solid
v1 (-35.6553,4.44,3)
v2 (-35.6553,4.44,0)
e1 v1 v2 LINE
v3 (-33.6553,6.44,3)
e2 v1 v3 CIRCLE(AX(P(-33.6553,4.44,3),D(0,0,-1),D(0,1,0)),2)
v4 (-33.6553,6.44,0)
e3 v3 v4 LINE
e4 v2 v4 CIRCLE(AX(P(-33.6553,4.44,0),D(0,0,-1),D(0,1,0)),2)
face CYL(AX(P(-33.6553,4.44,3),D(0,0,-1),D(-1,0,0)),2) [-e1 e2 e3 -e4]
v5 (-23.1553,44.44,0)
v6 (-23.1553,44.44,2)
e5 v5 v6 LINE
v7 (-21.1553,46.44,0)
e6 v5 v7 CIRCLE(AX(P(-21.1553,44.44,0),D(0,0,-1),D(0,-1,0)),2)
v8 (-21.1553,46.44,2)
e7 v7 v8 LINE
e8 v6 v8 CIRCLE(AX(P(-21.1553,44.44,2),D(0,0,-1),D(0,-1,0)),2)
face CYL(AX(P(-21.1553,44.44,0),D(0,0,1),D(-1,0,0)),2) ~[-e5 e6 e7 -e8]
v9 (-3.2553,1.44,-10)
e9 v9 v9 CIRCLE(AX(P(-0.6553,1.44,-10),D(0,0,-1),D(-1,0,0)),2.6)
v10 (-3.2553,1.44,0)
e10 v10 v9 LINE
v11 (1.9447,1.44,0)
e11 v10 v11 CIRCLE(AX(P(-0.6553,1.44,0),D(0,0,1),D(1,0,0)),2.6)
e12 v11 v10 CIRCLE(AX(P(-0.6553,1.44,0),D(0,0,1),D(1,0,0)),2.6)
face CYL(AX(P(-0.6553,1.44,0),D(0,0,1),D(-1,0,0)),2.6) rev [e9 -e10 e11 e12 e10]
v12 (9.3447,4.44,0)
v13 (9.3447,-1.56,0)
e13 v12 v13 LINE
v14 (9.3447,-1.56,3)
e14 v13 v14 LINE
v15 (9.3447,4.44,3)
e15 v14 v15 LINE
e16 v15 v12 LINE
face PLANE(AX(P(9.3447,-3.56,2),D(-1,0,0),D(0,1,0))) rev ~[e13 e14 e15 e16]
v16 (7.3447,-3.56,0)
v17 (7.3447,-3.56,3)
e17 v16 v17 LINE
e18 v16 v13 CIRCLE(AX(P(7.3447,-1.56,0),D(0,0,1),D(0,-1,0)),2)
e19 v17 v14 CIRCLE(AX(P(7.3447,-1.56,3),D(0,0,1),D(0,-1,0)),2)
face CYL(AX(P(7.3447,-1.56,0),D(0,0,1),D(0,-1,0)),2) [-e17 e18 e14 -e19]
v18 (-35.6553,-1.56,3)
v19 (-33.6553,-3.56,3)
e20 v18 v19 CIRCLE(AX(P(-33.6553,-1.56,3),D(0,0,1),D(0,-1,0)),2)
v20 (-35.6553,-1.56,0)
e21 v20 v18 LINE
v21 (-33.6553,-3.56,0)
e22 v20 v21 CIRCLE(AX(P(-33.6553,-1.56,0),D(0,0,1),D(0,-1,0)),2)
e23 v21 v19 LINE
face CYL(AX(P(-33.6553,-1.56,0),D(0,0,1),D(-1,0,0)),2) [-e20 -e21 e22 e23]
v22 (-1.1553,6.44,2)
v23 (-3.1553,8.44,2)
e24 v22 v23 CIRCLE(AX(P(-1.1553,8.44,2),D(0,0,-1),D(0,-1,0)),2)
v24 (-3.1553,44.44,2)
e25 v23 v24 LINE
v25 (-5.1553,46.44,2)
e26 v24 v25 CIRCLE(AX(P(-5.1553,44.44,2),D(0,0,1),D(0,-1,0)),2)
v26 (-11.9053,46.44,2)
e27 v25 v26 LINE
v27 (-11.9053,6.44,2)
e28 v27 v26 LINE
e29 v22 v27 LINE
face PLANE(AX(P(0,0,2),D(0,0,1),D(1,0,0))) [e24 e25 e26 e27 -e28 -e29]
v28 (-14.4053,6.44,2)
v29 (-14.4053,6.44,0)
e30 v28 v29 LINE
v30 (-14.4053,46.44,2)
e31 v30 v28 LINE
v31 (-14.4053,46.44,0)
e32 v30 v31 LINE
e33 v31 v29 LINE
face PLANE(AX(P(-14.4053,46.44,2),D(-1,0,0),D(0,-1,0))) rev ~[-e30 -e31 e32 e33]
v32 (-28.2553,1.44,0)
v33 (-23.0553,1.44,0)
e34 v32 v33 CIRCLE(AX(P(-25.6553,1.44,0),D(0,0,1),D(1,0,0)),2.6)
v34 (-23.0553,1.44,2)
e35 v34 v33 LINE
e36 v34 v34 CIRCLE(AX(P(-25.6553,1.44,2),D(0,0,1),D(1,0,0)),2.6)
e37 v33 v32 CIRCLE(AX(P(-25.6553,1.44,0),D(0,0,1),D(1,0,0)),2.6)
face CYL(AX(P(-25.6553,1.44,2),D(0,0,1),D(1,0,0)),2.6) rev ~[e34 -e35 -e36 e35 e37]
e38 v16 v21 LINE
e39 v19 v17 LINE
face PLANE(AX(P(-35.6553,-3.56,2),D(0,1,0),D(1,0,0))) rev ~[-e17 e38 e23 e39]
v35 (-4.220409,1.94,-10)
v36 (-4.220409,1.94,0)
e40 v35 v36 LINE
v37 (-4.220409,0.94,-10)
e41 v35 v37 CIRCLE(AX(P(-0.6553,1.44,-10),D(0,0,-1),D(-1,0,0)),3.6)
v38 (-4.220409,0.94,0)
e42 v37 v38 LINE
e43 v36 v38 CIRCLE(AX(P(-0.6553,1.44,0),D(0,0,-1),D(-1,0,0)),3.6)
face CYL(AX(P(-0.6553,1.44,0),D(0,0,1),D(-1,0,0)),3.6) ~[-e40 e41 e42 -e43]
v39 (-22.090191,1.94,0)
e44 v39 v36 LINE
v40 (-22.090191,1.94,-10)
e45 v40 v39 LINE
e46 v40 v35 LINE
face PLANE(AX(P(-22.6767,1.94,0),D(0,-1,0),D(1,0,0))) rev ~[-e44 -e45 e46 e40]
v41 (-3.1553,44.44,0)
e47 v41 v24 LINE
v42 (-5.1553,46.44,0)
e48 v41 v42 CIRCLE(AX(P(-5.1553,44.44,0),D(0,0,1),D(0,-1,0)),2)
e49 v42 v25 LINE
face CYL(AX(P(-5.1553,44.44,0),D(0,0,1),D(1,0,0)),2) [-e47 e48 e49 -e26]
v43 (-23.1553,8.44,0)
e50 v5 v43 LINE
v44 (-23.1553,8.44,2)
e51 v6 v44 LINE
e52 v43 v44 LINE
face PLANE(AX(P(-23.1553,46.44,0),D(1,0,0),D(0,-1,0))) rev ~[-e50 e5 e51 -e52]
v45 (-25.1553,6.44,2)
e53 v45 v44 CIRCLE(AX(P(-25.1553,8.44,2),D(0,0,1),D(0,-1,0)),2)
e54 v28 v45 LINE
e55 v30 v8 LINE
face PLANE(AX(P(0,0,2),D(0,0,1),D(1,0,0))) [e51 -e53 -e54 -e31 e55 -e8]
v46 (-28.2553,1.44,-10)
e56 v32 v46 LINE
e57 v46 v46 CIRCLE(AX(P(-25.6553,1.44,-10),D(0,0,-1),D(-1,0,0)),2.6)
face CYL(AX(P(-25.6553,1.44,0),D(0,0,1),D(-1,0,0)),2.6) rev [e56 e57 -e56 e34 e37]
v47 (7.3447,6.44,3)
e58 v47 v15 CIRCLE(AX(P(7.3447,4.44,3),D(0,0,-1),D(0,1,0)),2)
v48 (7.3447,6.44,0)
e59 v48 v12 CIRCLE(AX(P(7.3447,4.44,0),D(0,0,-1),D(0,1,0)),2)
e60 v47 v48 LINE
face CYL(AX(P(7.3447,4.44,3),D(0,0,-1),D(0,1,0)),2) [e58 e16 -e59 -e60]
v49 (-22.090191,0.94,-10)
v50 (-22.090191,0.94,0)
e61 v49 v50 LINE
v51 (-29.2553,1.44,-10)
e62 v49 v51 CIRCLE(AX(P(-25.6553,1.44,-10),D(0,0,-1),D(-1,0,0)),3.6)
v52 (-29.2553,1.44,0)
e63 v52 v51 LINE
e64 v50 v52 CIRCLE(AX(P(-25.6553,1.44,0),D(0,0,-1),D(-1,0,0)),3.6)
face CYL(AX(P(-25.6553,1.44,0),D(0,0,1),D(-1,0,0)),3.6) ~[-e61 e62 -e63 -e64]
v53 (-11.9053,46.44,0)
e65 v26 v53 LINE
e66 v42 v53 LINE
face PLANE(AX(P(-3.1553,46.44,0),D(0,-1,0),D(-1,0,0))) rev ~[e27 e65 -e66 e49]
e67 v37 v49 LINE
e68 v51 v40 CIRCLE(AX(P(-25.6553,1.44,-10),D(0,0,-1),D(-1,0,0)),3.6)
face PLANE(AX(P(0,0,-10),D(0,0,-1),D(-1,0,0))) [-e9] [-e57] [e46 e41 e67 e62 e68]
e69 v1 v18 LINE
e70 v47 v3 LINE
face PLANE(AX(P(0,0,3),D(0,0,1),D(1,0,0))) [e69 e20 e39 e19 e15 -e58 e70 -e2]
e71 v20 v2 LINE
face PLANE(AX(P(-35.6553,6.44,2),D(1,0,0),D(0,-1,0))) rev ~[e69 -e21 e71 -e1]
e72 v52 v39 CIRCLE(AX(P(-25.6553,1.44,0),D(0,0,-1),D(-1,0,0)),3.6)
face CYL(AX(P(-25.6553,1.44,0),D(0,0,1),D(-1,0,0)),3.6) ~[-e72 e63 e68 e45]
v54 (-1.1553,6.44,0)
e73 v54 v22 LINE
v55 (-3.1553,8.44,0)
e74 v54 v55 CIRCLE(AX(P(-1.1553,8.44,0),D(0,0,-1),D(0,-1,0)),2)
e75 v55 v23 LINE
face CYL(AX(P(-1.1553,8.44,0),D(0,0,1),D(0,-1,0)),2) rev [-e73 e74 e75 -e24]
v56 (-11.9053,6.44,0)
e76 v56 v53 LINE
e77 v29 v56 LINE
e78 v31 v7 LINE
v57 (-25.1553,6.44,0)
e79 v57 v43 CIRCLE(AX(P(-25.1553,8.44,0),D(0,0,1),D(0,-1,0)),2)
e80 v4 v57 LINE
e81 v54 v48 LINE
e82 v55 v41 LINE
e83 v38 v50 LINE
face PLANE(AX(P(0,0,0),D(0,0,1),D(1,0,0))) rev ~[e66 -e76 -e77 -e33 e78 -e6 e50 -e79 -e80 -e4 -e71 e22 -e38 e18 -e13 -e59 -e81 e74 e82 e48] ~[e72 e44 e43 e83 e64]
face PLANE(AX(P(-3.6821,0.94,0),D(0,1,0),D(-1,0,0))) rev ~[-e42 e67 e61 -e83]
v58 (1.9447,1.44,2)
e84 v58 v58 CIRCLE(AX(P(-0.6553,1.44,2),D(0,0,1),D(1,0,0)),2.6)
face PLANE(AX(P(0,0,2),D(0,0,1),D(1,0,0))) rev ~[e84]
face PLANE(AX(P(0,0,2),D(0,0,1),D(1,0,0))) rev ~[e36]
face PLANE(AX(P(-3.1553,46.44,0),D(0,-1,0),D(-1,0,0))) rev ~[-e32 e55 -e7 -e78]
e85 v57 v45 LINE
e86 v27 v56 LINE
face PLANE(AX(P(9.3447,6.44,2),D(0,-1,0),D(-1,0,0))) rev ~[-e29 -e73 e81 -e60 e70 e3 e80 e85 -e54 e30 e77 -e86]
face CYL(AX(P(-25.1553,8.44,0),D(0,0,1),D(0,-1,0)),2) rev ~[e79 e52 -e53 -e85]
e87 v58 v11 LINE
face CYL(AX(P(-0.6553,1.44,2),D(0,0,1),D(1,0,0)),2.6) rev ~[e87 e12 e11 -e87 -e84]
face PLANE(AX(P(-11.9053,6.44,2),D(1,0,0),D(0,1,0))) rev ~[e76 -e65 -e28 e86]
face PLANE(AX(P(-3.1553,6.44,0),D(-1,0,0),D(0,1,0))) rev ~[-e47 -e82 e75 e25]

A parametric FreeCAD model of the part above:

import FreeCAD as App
import Part
import Sketcher
from FreeCAD import Vector
Q = App.Units.Quantity


def edges_at(feature, points):
    """Names of the edges that pass closest to the given points."""
    edges = feature.Shape.Edges
    near = lambda p: min(range(len(edges)), key=lambda i: edges[i].distToShape(Part.Vertex(*p))[0])
    return sorted({f"Edge{near(p) + 1}" for p in points})

doc = App.newDocument("Part")
body = doc.addObject("PartDesign::Body", "Body")

# Sketch on XY plane
sketch1 = body.newObject("Sketcher::SketchObject", "Sketch")
sketch1.AttachmentSupport = (doc.getObject("XY_Plane"), [""])
sketch1.MapMode = "FlatFace"
sketch1.addGeometry([
    Part.LineSegment(Vector(-23, 6, 0), Vector(-36, 6, 0)),  # 0
    Part.LineSegment(Vector(-36, 6, 0), Vector(-36, -4, 0)),  # 1
    Part.LineSegment(Vector(-36, -4, 0), Vector(9, -4, 0)),  # 2
    Part.LineSegment(Vector(9, -4, 0), Vector(9, 6, 0)),  # 3
    Part.LineSegment(Vector(9, 6, 0), Vector(-3, 6, 0)),  # 4
    Part.LineSegment(Vector(-3, 6, 0), Vector(-3, 46, 0)),  # 5
    Part.LineSegment(Vector(-3, 46, 0), Vector(-23, 46, 0)),  # 6
    Part.LineSegment(Vector(-23, 46, 0), Vector(-23, 6, 0)),  # 7
], False)
sketch1.addConstraint([
    Sketcher.Constraint("Coincident", 0, 2, 1, 1),
    Sketcher.Constraint("Coincident", 1, 2, 2, 1),
    Sketcher.Constraint("Coincident", 2, 2, 3, 1),
    Sketcher.Constraint("Coincident", 3, 2, 4, 1),
    Sketcher.Constraint("Coincident", 4, 2, 5, 1),
    Sketcher.Constraint("Coincident", 5, 2, 6, 1),
    Sketcher.Constraint("Coincident", 6, 2, 7, 1),
    Sketcher.Constraint("Coincident", 7, 2, 0, 1),
    Sketcher.Constraint("Horizontal", 0),
    Sketcher.Constraint("Vertical", 1),
    Sketcher.Constraint("Horizontal", 2),
    Sketcher.Constraint("Vertical", 3),
    Sketcher.Constraint("Horizontal", 4),
    Sketcher.Constraint("Vertical", 5),
    Sketcher.Constraint("Horizontal", 6),
    Sketcher.Constraint("Vertical", 7),
    Sketcher.Constraint("Horizontal", 0, 2, 3, 2),
    Sketcher.Constraint("Equal", 0, 4),
    Sketcher.Constraint("DistanceX", 2, 1, 2, 2, Q("45 mm")),
    Sketcher.Constraint("DistanceX", 6, 2, 6, 1, Q("20 mm")),
    Sketcher.Constraint("DistanceY", 1, 2, 1, 1, Q("10 mm")),
    Sketcher.Constraint("DistanceY", 5, 1, 5, 2, Q("40 mm")),
    Sketcher.Constraint("DistanceY", -1, 1, 0, 2, Q("6.44 mm")),
    Sketcher.Constraint("DistanceX", 0, 2, -1, 1, Q("35.6553 mm")),
])
pad1 = body.newObject("PartDesign::Pad", "Pad")
pad1.Profile = sketch1
pad1.Length = 2

# Sketch on XY plane
sketch2 = body.newObject("Sketcher::SketchObject", "Sketch001")
sketch2.AttachmentSupport = (doc.getObject("XY_Plane"), [""])
sketch2.MapMode = "FlatFace"
sketch2.AttachmentOffset = App.Placement(Vector(0, 0, 2), App.Rotation())
sketch2.addGeometry([
    Part.Circle(Vector(-25.7, 1.4, 0), Vector(0, 0, 1), 2.6),
    Part.Circle(Vector(-0.7, 1.4, 0), Vector(0, 0, 1), 2.6),
], False)
sketch2.addConstraint([
    Sketcher.Constraint("Equal", 0, 1),
    Sketcher.Constraint("Horizontal", 0, 3, 1, 3),
    Sketcher.Constraint("Diameter", 0, Q("5.2 mm")),
    Sketcher.Constraint("DistanceX", 0, 3, 1, 3, Q("25 mm")),
    Sketcher.Constraint("DistanceY", -1, 1, 0, 3, Q("1.44 mm")),
    Sketcher.Constraint("DistanceX", 0, 3, -1, 1, Q("25.6553 mm")),
])
pocket1 = body.newObject("PartDesign::Pocket", "Pocket")
pocket1.Profile = sketch2
pocket1.Length = 2

# Sketch on XY plane
sketch3 = body.newObject("Sketcher::SketchObject", "Sketch002")
sketch3.AttachmentSupport = (doc.getObject("XY_Plane"), [""])
sketch3.MapMode = "FlatFace"
sketch3.AttachmentOffset = App.Placement(Vector(0, 0, 2), App.Rotation())
sketch3.addGeometry([
    Part.LineSegment(Vector(-36, 6, 0), Vector(-36, -4, 0)),
    Part.LineSegment(Vector(-36, -4, 0), Vector(9, -4, 0)),
    Part.LineSegment(Vector(9, -4, 0), Vector(9, 6, 0)),
    Part.LineSegment(Vector(9, 6, 0), Vector(-36, 6, 0)),
], False)
sketch3.addConstraint([
    Sketcher.Constraint("Coincident", 0, 2, 1, 1),
    Sketcher.Constraint("Coincident", 1, 2, 2, 1),
    Sketcher.Constraint("Coincident", 2, 2, 3, 1),
    Sketcher.Constraint("Coincident", 3, 2, 0, 1),
    Sketcher.Constraint("Vertical", 0),
    Sketcher.Constraint("Horizontal", 1),
    Sketcher.Constraint("Vertical", 2),
    Sketcher.Constraint("Horizontal", 3),
    Sketcher.Constraint("DistanceX", 1, 1, 1, 2, Q("45 mm")),
    Sketcher.Constraint("DistanceY", 0, 2, 0, 1, Q("10 mm")),
    Sketcher.Constraint("DistanceY", 0, 2, -1, 1, Q("3.56 mm")),
    Sketcher.Constraint("DistanceX", 0, 2, -1, 1, Q("35.6553 mm")),
])
pad2 = body.newObject("PartDesign::Pad", "Pad001")
pad2.Profile = sketch3
pad2.Length = 1

# Sketch on XY plane
sketch4 = body.newObject("Sketcher::SketchObject", "Sketch003")
sketch4.AttachmentSupport = (doc.getObject("XY_Plane"), [""])
sketch4.MapMode = "FlatFace"
sketch4.AttachmentOffset = App.Placement(Vector(0, 0, 2), App.Rotation())
sketch4.addGeometry([
    Part.LineSegment(Vector(-14.4, 46.4, 0), Vector(-14.4, 6.4, 0)),
    Part.LineSegment(Vector(-14.4, 6.4, 0), Vector(-11.9, 6.4, 0)),
    Part.LineSegment(Vector(-11.9, 6.4, 0), Vector(-11.9, 46.4, 0)),
    Part.LineSegment(Vector(-11.9, 46.4, 0), Vector(-14.4, 46.4, 0)),
], False)
sketch4.addConstraint([
    Sketcher.Constraint("Coincident", 0, 2, 1, 1),
    Sketcher.Constraint("Coincident", 1, 2, 2, 1),
    Sketcher.Constraint("Coincident", 2, 2, 3, 1),
    Sketcher.Constraint("Coincident", 3, 2, 0, 1),
    Sketcher.Constraint("Vertical", 0),
    Sketcher.Constraint("Horizontal", 1),
    Sketcher.Constraint("Vertical", 2),
    Sketcher.Constraint("Horizontal", 3),
    Sketcher.Constraint("DistanceY", 0, 2, 0, 1, Q("40 mm")),
    Sketcher.Constraint("DistanceX", 1, 1, 1, 2, Q("2.5 mm")),
    Sketcher.Constraint("DistanceY", -1, 1, 0, 2, Q("6.44 mm")),
    Sketcher.Constraint("DistanceX", 0, 2, -1, 1, Q("14.4053 mm")),
])
pocket2 = body.newObject("PartDesign::Pocket", "Pocket001")
pocket2.Profile = sketch4
pocket2.Length = 2
doc.recompute()

fillet = body.newObject("PartDesign::Fillet", "Fillet")
fillet.Base = (pocket2, edges_at(pocket2, [
    (-35.655, 6.44, 1.5),
    (9.345, 6.44, 1.5),
    (-3.155, 46.44, 1),
    (-23.155, 46.44, 1),
    (-3.155, 6.44, 1),
    (-23.155, 6.44, 1),
]))
fillet.Radius = 2
doc.recompute()

fillet2 = body.newObject("PartDesign::Fillet", "Fillet001")
fillet2.Base = (fillet, edges_at(fillet, [(9.345, -3.56, 1.5), (-35.655, -3.56, 1.5)]))
fillet2.Radius = 2

# Sketch on XY plane
sketch5 = body.newObject("Sketcher::SketchObject", "Sketch004")
sketch5.AttachmentSupport = (doc.getObject("XY_Plane"), [""])
sketch5.MapMode = "FlatFace"
sketch5.addGeometry([
    Part.Circle(Vector(-25.7, 1.4, 0), Vector(0, 0, 1), 3.6),
    Part.Circle(Vector(-25.7, 1.4, 0), Vector(0, 0, 1), 2.6),
    Part.Circle(Vector(-0.7, 1.4, 0), Vector(0, 0, 1), 3.6),
    Part.Circle(Vector(-0.7, 1.4, 0), Vector(0, 0, 1), 2.6),
], False)
sketch5.addConstraint([
    Sketcher.Constraint("Coincident", 1, 3, 0, 3),
    Sketcher.Constraint("Coincident", 3, 3, 2, 3),
    Sketcher.Constraint("Equal", 0, 2),
    Sketcher.Constraint("Equal", 1, 3),
    Sketcher.Constraint("Horizontal", 1, 3, 2, 3),
    Sketcher.Constraint("Diameter", 0, Q("7.2 mm")),
    Sketcher.Constraint("Diameter", 1, Q("5.2 mm")),
    Sketcher.Constraint("DistanceX", 0, 3, 2, 3, Q("25 mm")),
    Sketcher.Constraint("DistanceY", -1, 1, 0, 3, Q("1.44 mm")),
    Sketcher.Constraint("DistanceX", 0, 3, -1, 1, Q("25.6553 mm")),
])
pad3 = body.newObject("PartDesign::Pad", "Pad002")
pad3.Profile = sketch5
pad3.Length = 10
pad3.Reversed = True

# Sketch on XY plane
sketch6 = body.newObject("Sketcher::SketchObject", "Sketch005")
sketch6.AttachmentSupport = (doc.getObject("XY_Plane"), [""])
sketch6.MapMode = "FlatFace"
sketch6.addGeometry([
    Part.LineSegment(Vector(-3.7, 1.9, 0), Vector(-3.7, 0.9, 0)),
    Part.LineSegment(Vector(-3.7, 0.9, 0), Vector(-22.7, 0.9, 0)),
    Part.LineSegment(Vector(-22.7, 0.9, 0), Vector(-22.7, 1.9, 0)),
    Part.LineSegment(Vector(-22.7, 1.9, 0), Vector(-3.7, 1.9, 0)),
], False)
sketch6.addConstraint([
    Sketcher.Constraint("Coincident", 0, 2, 1, 1),
    Sketcher.Constraint("Coincident", 1, 2, 2, 1),
    Sketcher.Constraint("Coincident", 2, 2, 3, 1),
    Sketcher.Constraint("Coincident", 3, 2, 0, 1),
    Sketcher.Constraint("Vertical", 0),
    Sketcher.Constraint("Horizontal", 1),
    Sketcher.Constraint("Vertical", 2),
    Sketcher.Constraint("Horizontal", 3),
    Sketcher.Constraint("DistanceY", 0, 2, 0, 1, Q("1 mm")),
    Sketcher.Constraint("DistanceY", -1, 1, 0, 2, Q("0.94 mm")),
    Sketcher.Constraint("DistanceX", 1, 2, 1, 1, Q("18.9946 mm")),
    Sketcher.Constraint("DistanceX", 0, 2, -1, 1, Q("3.682 mm")),
])
pad4 = body.newObject("PartDesign::Pad", "Pad003")
pad4.Profile = sketch6
pad4.Length = 10
pad4.Reversed = True

doc.recompute()
